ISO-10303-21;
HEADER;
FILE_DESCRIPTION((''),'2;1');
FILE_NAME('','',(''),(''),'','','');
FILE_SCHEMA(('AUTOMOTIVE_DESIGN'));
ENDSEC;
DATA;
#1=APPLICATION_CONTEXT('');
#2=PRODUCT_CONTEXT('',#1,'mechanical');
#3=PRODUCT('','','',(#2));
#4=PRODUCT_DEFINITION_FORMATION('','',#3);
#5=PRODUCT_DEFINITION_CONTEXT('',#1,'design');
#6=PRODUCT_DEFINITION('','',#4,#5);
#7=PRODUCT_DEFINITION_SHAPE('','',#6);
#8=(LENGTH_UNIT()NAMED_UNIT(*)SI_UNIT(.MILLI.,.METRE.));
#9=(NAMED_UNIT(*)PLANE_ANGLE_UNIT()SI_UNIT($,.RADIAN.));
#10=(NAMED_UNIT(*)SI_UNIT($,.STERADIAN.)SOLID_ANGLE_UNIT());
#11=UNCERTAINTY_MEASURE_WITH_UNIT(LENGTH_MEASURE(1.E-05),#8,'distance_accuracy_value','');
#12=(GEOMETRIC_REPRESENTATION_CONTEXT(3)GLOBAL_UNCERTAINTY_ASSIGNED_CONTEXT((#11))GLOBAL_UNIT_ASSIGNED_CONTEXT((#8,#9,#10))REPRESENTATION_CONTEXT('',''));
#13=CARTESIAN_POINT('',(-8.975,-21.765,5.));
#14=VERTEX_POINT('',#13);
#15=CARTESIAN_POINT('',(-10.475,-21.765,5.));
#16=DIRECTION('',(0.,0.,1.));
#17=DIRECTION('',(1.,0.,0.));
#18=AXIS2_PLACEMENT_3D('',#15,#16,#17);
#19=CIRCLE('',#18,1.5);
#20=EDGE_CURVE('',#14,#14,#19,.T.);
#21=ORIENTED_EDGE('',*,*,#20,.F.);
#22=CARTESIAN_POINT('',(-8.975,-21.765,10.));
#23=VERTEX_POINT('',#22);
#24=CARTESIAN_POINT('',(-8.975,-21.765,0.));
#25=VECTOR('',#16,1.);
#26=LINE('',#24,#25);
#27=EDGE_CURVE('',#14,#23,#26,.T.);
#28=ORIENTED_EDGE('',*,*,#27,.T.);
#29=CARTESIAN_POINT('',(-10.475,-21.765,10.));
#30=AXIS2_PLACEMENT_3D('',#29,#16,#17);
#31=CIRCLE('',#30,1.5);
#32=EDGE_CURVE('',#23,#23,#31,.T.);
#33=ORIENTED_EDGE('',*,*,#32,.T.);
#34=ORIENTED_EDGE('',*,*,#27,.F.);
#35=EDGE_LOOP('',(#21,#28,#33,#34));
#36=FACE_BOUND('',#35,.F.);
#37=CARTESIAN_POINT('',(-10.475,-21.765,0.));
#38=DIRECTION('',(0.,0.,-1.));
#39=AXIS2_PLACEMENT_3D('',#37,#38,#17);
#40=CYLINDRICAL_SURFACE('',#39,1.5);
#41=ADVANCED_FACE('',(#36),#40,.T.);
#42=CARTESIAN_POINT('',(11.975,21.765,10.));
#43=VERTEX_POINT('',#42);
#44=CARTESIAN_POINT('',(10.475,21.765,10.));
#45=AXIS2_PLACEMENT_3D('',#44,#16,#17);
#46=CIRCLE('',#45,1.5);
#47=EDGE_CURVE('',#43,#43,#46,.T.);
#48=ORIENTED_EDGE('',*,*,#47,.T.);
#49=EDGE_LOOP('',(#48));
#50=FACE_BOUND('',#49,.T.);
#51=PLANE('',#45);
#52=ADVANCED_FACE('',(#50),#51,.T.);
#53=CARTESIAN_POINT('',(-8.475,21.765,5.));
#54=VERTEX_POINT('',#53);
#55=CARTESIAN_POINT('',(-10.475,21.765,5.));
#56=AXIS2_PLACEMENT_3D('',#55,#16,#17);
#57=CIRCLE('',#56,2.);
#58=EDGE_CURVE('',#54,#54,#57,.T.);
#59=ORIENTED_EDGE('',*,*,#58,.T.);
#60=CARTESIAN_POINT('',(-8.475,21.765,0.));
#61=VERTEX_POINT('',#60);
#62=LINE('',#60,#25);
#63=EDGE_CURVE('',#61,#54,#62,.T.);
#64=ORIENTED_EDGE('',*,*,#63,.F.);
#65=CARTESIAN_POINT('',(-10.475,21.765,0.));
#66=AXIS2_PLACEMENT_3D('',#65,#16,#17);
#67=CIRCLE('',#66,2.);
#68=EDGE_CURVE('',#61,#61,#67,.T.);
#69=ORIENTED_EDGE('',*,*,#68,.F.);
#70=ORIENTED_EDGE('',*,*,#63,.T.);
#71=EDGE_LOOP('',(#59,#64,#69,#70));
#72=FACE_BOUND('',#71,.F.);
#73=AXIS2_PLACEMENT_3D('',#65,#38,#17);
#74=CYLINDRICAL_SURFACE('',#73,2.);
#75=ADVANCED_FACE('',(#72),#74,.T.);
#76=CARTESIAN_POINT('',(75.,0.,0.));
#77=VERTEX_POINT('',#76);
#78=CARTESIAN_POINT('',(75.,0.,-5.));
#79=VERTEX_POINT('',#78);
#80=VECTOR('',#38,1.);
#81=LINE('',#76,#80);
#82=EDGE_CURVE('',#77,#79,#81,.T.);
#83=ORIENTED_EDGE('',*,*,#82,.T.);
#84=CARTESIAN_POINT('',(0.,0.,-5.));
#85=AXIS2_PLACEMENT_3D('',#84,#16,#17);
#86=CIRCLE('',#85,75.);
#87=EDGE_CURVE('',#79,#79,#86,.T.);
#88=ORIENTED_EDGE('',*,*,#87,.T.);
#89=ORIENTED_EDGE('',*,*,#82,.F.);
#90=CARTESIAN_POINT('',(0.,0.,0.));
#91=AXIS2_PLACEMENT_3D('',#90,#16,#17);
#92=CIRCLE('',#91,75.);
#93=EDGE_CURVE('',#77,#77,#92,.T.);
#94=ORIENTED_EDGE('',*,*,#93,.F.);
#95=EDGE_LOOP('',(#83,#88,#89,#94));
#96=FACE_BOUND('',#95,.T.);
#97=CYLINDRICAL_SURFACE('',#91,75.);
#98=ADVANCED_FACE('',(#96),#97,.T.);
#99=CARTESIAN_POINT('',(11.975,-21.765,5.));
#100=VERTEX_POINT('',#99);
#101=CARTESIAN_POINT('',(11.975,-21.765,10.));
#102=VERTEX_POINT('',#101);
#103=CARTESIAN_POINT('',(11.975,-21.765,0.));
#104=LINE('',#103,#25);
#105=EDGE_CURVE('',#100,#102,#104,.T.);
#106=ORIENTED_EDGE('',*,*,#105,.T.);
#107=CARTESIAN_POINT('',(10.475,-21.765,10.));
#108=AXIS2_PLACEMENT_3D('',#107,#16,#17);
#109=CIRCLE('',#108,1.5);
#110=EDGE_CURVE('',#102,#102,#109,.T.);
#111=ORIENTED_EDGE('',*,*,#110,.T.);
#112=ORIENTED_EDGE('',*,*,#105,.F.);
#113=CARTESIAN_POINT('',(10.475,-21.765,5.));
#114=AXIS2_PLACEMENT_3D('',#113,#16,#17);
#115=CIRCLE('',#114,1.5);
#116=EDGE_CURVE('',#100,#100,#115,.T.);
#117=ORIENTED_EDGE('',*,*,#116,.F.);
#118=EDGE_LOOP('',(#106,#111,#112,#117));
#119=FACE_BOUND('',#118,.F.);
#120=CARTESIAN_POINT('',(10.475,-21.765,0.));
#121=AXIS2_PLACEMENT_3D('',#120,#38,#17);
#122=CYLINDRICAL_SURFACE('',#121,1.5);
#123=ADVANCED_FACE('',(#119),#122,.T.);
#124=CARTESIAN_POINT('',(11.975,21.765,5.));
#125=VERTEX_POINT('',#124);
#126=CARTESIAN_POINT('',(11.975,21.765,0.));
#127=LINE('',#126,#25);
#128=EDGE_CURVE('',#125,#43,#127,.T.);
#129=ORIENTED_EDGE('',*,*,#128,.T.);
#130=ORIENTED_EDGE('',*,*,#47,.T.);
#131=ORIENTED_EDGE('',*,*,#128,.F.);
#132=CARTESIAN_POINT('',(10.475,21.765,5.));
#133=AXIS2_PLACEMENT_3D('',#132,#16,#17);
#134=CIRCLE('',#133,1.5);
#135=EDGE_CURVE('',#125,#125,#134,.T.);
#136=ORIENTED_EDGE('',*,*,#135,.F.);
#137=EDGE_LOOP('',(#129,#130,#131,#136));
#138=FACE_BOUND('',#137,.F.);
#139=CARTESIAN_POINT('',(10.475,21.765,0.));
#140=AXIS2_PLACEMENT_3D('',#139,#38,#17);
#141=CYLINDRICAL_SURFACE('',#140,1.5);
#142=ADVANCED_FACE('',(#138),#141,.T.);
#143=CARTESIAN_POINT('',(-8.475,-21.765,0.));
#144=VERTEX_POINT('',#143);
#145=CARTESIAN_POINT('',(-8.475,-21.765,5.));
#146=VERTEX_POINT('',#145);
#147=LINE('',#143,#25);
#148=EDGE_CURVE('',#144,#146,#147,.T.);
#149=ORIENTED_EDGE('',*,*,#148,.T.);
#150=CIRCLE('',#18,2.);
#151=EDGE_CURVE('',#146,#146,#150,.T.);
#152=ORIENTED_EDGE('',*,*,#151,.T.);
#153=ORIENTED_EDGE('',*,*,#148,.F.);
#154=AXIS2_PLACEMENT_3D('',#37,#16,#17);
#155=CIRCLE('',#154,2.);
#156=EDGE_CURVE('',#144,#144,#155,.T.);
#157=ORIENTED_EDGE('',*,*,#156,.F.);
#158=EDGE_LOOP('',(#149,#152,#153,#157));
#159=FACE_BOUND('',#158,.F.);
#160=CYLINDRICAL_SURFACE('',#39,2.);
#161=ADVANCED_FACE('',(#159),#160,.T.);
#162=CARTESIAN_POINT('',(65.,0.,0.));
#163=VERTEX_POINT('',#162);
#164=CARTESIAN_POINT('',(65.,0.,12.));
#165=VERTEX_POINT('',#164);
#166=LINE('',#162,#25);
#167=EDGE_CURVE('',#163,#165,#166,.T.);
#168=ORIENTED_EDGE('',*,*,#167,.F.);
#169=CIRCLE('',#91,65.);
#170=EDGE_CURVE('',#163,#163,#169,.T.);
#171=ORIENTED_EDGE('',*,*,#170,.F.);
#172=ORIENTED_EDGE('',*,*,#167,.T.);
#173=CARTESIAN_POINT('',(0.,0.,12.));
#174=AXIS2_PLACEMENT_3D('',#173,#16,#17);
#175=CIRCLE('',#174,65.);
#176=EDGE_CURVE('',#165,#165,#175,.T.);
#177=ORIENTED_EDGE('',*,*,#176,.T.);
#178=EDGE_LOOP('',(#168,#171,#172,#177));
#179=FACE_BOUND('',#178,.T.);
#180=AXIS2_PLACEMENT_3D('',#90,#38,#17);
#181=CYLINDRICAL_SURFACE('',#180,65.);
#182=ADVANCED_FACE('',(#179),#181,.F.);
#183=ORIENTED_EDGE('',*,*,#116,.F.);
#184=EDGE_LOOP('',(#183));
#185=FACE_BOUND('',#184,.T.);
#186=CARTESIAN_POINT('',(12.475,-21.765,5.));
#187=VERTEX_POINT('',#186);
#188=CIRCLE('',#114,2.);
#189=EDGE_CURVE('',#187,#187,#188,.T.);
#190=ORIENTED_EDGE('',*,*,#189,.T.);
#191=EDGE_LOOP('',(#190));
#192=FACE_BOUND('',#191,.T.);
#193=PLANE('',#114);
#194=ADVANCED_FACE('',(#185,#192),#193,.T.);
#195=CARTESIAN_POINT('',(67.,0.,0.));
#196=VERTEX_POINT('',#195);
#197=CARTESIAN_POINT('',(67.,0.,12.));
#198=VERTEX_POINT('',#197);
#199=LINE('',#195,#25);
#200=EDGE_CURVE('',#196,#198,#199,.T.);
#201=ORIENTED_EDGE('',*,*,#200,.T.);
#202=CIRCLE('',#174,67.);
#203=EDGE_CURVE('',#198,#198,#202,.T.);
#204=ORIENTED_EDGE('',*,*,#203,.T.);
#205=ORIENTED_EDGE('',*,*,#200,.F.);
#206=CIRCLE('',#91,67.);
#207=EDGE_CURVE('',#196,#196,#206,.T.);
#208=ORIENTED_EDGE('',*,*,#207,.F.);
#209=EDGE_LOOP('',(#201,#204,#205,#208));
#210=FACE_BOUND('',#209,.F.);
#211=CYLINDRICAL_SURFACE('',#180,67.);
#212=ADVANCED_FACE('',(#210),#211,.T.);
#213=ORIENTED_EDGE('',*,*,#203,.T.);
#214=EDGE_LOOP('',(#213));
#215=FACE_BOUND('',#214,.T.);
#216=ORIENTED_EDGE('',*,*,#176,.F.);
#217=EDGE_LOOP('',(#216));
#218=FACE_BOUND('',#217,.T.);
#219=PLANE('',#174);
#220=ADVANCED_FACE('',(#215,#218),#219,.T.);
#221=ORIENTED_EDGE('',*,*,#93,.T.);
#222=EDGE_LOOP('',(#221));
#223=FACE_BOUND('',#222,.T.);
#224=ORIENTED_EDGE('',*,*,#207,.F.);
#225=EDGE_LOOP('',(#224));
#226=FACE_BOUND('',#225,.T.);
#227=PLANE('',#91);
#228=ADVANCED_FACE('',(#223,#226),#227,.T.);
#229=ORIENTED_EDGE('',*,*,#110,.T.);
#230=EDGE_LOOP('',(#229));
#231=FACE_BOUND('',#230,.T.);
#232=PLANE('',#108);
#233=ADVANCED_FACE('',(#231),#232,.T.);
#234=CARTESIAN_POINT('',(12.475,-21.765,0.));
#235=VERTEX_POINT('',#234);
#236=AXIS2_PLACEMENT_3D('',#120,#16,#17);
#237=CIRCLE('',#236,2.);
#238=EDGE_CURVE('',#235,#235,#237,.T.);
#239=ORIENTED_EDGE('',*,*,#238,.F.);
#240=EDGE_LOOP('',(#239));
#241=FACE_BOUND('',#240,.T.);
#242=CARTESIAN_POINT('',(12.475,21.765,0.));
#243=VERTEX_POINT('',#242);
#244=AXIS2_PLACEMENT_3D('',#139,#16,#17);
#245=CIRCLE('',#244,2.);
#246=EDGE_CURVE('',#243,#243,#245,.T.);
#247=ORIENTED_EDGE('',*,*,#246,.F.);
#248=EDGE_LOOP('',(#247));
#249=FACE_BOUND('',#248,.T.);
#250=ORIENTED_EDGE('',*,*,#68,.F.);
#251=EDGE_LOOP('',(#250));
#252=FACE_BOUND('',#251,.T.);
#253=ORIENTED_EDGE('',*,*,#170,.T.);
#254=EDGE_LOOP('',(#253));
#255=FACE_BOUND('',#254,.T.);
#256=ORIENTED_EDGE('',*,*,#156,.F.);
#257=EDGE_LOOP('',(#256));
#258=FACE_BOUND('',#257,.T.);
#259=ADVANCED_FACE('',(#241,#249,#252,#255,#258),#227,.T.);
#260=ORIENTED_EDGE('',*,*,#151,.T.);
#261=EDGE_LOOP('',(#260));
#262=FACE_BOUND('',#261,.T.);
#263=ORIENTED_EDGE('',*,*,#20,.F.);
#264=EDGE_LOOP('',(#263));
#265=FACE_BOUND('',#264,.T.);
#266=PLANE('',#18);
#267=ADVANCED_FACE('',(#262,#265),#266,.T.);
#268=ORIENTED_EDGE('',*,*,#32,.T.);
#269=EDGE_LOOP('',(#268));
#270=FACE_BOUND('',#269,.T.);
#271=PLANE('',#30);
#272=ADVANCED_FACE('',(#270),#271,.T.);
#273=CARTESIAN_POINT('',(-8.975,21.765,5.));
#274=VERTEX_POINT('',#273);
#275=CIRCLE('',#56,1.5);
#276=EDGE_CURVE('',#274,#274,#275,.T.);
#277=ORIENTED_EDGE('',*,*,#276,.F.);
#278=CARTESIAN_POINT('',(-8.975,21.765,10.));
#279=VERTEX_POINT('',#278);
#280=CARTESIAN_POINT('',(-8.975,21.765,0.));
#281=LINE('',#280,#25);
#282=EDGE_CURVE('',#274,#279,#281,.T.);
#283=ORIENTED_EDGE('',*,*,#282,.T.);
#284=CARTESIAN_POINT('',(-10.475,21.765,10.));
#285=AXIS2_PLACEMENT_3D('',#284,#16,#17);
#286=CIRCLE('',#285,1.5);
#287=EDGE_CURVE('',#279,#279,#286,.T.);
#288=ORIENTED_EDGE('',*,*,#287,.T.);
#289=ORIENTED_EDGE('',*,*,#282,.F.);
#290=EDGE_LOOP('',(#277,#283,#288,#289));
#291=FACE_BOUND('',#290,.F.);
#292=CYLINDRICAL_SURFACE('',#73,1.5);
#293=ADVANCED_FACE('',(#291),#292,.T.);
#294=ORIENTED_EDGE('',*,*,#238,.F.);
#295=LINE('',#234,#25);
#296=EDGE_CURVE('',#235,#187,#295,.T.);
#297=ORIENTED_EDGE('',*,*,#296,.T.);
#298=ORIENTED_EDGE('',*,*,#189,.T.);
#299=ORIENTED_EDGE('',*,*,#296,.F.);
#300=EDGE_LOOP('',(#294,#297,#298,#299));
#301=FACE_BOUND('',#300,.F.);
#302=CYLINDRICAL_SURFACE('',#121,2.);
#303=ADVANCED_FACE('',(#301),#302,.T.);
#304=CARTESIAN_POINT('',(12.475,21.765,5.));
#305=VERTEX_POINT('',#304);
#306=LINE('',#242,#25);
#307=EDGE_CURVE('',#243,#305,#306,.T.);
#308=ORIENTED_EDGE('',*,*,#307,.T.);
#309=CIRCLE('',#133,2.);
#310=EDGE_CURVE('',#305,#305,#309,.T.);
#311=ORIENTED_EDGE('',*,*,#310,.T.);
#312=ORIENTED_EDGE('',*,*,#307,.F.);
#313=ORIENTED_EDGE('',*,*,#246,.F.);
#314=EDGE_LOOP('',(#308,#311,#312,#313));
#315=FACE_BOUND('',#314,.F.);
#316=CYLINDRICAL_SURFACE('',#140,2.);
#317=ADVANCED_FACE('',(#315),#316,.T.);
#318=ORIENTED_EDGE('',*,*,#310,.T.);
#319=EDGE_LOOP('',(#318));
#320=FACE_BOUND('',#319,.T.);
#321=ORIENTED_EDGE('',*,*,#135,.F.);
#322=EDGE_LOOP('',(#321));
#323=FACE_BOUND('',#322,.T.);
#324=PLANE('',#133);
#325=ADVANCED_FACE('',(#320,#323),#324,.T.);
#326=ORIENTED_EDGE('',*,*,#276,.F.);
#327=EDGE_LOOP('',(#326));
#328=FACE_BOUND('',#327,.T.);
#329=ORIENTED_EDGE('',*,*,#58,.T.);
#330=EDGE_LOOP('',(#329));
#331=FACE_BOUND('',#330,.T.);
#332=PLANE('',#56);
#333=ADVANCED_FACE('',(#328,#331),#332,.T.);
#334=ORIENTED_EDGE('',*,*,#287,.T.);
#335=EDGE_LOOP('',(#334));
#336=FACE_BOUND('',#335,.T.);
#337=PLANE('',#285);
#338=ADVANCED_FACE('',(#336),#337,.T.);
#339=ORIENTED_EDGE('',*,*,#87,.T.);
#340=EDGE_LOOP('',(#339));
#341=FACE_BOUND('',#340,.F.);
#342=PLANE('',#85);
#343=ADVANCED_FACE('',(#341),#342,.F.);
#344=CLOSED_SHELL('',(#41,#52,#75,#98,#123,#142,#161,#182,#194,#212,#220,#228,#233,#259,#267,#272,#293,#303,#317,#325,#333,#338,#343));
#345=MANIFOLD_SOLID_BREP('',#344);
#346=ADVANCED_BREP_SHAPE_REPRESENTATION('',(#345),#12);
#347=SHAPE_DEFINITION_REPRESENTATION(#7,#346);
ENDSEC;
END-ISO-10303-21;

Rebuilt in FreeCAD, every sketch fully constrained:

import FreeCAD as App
import Part
import Sketcher

V = App.Vector
Q = App.Units.Quantity

doc = App.newDocument("Part")
body = doc.addObject("PartDesign::Body", "Body")

sketch1 = body.newObject("Sketcher::SketchObject", "Sketch")
sketch1.AttachmentSupport = (doc.getObject("XY_Plane"), [""])
sketch1.MapMode = "FlatFace"
sketch1.addGeometry(Part.Circle(V(0, 0, 0), V(0, 0, 1), 75), False)
sketch1.addConstraint(Sketcher.Constraint("Coincident", 0, 3, -1, 1))
sketch1.addConstraint(Sketcher.Constraint("Diameter", 0, Q("150 mm")))
pad1 = body.newObject("PartDesign::Pad", "Pad")
pad1.Profile = sketch1
pad1.Length = 5
pad1.Reversed = True

sketch2 = body.newObject("Sketcher::SketchObject", "Sketch001")
sketch2.AttachmentSupport = (doc.getObject("XY_Plane"), [""])
sketch2.MapMode = "FlatFace"
sketch2.addGeometry(Part.Circle(V(10.475, 21.765, 0), V(0, 0, 1), 1.5), False)
sketch2.addGeometry(Part.Circle(V(-10.475, 21.765, 0), V(0, 0, 1), 1.5), False)
sketch2.addGeometry(Part.Circle(V(10.475, -21.765, 0), V(0, 0, 1), 1.5), False)
sketch2.addGeometry(Part.Circle(V(-10.475, -21.765, 0), V(0, 0, 1), 1.5), False)
sketch2.addConstraint(Sketcher.Constraint("Equal", 0, 1))
sketch2.addConstraint(Sketcher.Constraint("Equal", 1, 2))
sketch2.addConstraint(Sketcher.Constraint("Equal", 2, 3))
sketch2.addConstraint(Sketcher.Constraint("Symmetric", 1, 3, 2, 3, -1, 1))
sketch2.addConstraint(Sketcher.Constraint("Symmetric", 0, 3, 3, 3, -1, 1))
sketch2.addConstraint(Sketcher.Constraint("Symmetric", 0, 3, 1, 3, -2))
sketch2.addConstraint(Sketcher.Constraint("Diameter", 0, Q("3 mm")))
sketch2.addConstraint(Sketcher.Constraint("DistanceX", 1, 3, 0, 3, Q("20.95 mm")))
sketch2.addConstraint(Sketcher.Constraint("DistanceY", 2, 3, 0, 3, Q("43.53 mm")))
pad2 = body.newObject("PartDesign::Pad", "Pad001")
pad2.Profile = sketch2
pad2.Length = 10

sketch3 = body.newObject("Sketcher::SketchObject", "Sketch002")
sketch3.AttachmentSupport = (doc.getObject("XY_Plane"), [""])
sketch3.MapMode = "FlatFace"
sketch3.addGeometry(Part.Circle(V(10.475, 21.765, 0), V(0, 0, 1), 2), False)
sketch3.addGeometry(Part.Circle(V(10.475, 21.765, 0), V(0, 0, 1), 1.5), False)
sketch3.addGeometry(Part.Circle(V(-10.475, 21.765, 0), V(0, 0, 1), 2), False)
sketch3.addGeometry(Part.Circle(V(-10.475, 21.765, 0), V(0, 0, 1), 1.5), False)
sketch3.addGeometry(Part.Circle(V(-10.475, -21.765, 0), V(0, 0, 1), 2), False)
sketch3.addGeometry(Part.Circle(V(-10.475, -21.765, 0), V(0, 0, 1), 1.5), False)
sketch3.addGeometry(Part.Circle(V(10.475, -21.765, 0), V(0, 0, 1), 2), False)
sketch3.addGeometry(Part.Circle(V(10.475, -21.765, 0), V(0, 0, 1), 1.5), False)
sketch3.addConstraint(Sketcher.Constraint("Coincident", 1, 3, 0, 3))
sketch3.addConstraint(Sketcher.Constraint("Coincident", 3, 3, 2, 3))
sketch3.addConstraint(Sketcher.Constraint("Coincident", 5, 3, 4, 3))
sketch3.addConstraint(Sketcher.Constraint("Coincident", 7, 3, 6, 3))
sketch3.addConstraint(Sketcher.Constraint("Equal", 0, 2))
sketch3.addConstraint(Sketcher.Constraint("Equal", 1, 3))
sketch3.addConstraint(Sketcher.Constraint("Equal", 2, 4))
sketch3.addConstraint(Sketcher.Constraint("Equal", 3, 5))
sketch3.addConstraint(Sketcher.Constraint("Equal", 4, 6))
sketch3.addConstraint(Sketcher.Constraint("Equal", 5, 7))
sketch3.addConstraint(Sketcher.Constraint("Symmetric", 0, 3, 4, 3, -1, 1))
sketch3.addConstraint(Sketcher.Constraint("Symmetric", 2, 3, 6, 3, -1, 1))
sketch3.addConstraint(Sketcher.Constraint("Symmetric", 0, 3, 2, 3, -2))
sketch3.addConstraint(Sketcher.Constraint("Diameter", 0, Q("4 mm")))
sketch3.addConstraint(Sketcher.Constraint("Diameter", 1, Q("3 mm")))
sketch3.addConstraint(Sketcher.Constraint("DistanceX", 2, 3, 0, 3, Q("20.95 mm")))
sketch3.addConstraint(Sketcher.Constraint("DistanceY", 4, 3, 2, 3, Q("43.53 mm")))
pad3 = body.newObject("PartDesign::Pad", "Pad002")
pad3.Profile = sketch3
pad3.Length = 5

sketch4 = body.newObject("Sketcher::SketchObject", "Sketch003")
sketch4.AttachmentSupport = (doc.getObject("XY_Plane"), [""])
sketch4.MapMode = "FlatFace"
sketch4.addGeometry(Part.Circle(V(0, 0, 0), V(0, 0, 1), 67), False)
sketch4.addGeometry(Part.Circle(V(0, 0, 0), V(0, 0, 1), 65), False)
sketch4.addConstraint(Sketcher.Constraint("Coincident", 0, 3, -1, 1))
sketch4.addConstraint(Sketcher.Constraint("Coincident", 1, 3, -1, 1))
sketch4.addConstraint(Sketcher.Constraint("Diameter", 0, Q("134 mm")))
sketch4.addConstraint(Sketcher.Constraint("Diameter", 1, Q("130 mm")))
pad4 = body.newObject("PartDesign::Pad", "Pad003")
pad4.Profile = sketch4
pad4.Length = 12

doc.recompute()
